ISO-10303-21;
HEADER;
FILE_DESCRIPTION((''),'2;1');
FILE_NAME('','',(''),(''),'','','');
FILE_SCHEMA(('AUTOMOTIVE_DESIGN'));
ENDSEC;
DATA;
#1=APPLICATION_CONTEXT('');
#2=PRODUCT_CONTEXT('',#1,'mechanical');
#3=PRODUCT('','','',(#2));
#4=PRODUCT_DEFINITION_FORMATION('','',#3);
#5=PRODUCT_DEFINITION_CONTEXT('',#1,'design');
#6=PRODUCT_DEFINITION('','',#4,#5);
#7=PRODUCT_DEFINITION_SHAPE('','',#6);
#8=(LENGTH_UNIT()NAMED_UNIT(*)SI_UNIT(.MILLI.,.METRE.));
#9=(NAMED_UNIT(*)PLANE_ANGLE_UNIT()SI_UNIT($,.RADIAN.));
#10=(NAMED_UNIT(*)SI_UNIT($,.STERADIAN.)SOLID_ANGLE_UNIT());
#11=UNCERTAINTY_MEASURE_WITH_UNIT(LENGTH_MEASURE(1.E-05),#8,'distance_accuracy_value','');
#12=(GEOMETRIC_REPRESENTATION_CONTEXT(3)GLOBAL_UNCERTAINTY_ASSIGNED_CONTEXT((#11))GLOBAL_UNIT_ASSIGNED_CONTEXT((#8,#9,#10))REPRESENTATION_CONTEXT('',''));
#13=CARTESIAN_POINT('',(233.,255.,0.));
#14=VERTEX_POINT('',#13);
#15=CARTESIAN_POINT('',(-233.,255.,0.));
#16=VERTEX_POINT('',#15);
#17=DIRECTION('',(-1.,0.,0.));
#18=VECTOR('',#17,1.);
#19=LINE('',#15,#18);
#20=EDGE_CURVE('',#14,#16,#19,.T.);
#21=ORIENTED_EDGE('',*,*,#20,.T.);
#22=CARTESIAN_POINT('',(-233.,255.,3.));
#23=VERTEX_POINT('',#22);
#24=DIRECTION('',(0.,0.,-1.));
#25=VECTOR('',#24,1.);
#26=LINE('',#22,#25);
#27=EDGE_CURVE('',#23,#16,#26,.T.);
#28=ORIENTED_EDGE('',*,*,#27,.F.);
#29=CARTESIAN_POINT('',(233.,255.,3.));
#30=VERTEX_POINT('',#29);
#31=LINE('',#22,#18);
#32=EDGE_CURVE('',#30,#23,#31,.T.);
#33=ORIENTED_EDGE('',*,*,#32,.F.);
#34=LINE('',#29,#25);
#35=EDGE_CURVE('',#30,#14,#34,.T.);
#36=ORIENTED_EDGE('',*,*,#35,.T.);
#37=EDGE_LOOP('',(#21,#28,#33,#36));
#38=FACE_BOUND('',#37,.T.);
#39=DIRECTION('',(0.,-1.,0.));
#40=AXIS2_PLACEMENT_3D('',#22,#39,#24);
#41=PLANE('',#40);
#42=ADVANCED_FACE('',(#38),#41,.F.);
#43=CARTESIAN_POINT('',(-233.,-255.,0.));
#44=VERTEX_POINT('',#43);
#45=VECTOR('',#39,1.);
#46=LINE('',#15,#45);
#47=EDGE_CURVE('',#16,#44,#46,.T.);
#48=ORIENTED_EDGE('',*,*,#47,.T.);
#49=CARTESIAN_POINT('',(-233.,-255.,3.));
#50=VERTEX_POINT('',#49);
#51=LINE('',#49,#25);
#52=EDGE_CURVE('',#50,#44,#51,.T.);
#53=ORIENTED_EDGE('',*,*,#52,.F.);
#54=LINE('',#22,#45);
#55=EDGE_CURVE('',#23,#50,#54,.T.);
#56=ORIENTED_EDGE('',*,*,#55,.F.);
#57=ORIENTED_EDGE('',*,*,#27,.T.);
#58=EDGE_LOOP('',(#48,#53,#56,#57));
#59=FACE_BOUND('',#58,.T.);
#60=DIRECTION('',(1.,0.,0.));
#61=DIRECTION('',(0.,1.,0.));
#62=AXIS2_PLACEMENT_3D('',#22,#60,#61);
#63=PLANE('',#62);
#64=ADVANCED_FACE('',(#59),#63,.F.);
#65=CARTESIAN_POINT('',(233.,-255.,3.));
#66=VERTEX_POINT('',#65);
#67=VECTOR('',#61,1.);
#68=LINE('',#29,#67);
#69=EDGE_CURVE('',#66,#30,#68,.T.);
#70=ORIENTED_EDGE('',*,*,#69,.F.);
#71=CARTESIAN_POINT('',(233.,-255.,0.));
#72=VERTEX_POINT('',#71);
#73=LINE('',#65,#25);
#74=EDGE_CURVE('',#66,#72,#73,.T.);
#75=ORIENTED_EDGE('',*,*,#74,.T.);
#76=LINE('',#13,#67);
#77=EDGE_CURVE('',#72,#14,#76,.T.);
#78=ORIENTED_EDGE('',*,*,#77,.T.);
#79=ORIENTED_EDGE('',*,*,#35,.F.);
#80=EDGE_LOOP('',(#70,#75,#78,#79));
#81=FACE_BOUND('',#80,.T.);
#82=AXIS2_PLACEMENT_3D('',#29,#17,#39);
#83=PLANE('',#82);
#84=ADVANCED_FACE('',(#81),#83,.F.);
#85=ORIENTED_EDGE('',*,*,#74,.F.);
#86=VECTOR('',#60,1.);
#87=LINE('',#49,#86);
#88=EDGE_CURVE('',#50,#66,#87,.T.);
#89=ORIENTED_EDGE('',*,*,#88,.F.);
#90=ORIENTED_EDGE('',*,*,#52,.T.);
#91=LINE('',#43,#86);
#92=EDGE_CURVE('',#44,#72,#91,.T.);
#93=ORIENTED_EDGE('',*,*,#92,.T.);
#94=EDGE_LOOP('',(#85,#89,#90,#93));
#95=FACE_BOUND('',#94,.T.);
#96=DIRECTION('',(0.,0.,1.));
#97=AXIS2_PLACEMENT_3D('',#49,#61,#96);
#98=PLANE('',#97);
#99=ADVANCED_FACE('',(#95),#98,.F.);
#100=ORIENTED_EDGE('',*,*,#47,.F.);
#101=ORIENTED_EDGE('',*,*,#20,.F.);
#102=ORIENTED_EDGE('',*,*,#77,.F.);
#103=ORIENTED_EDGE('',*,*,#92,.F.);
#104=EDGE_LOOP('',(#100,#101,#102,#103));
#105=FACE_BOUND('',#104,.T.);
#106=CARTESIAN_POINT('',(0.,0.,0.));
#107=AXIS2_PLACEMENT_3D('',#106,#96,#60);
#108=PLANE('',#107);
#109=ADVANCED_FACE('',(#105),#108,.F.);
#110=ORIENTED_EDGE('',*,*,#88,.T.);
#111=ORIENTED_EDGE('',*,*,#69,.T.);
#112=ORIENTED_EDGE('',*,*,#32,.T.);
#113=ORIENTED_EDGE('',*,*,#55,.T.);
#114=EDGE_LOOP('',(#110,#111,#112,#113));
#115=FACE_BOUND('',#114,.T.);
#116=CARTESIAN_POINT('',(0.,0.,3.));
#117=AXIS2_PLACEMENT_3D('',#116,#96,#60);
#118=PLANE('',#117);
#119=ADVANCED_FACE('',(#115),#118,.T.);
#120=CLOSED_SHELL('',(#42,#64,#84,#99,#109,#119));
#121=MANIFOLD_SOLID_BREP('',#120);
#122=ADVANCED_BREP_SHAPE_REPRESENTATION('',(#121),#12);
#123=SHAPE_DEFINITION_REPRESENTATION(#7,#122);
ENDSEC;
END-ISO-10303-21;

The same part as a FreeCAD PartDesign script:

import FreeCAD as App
import Part
import Sketcher

doc = App.newDocument("Part")
body = doc.addObject("PartDesign::Body", "Body")

sketch1 = body.newObject("Sketcher::SketchObject", "Sketch")
sketch1.AttachmentSupport = (doc.getObject("XY_Plane"), [""])
sketch1.MapMode = "FlatFace"
sketch1.addGeometry([
    Part.LineSegment(App.Vector(-233, 255, 0), App.Vector(-233, -255, 0)),
    Part.LineSegment(App.Vector(-233, -255, 0), App.Vector(233, -255, 0)),
    Part.LineSegment(App.Vector(233, -255, 0), App.Vector(233, 255, 0)),
    Part.LineSegment(App.Vector(233, 255, 0), App.Vector(-233, 255, 0)),
], False)
sketch1.addConstraint([
    Sketcher.Constraint("Coincident", 0, 2, 1, 1),
    Sketcher.Constraint("Coincident", 1, 2, 2, 1),
    Sketcher.Constraint("Coincident", 2, 2, 3, 1),
    Sketcher.Constraint("Coincident", 3, 2, 0, 1),
    Sketcher.Constraint("Vertical", 0),
    Sketcher.Constraint("Horizontal", 1),
    Sketcher.Constraint("Vertical", 2),
    Sketcher.Constraint("Horizontal", 3),
    Sketcher.Constraint("Symmetric", 0, 2, 2, 2, -1, 1),
    Sketcher.Constraint("DistanceX", 1, 1, 1, 2, 466.0),
    Sketcher.Constraint("DistanceY", 0, 2, 0, 1, 510.0),
])
pad1 = body.newObject("PartDesign::Pad", "Pad")
pad1.Profile = sketch1
pad1.Length = 3

doc.recompute()
